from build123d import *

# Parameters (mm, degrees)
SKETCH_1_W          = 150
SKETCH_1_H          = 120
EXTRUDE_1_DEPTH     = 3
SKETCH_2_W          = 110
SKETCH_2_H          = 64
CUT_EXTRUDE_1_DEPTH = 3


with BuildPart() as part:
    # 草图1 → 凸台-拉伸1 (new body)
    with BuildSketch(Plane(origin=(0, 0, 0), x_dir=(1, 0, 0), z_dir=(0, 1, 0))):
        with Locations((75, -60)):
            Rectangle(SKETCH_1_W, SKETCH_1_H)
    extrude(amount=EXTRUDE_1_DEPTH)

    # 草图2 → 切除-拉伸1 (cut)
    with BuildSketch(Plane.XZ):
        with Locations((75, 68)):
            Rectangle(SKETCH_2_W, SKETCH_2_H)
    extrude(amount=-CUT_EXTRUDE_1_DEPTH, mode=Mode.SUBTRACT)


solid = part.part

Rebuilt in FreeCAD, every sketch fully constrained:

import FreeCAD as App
import Part
import Sketcher

V = App.Vector
Q = App.Units.Quantity


def add_polygon(sketch, points):
    """Adds a closed chain of lines whose ends are joined by coincident constraints."""
    first, n = sketch.GeometryCount, len(points)
    for a, b in zip(points, points[1:] + points[:1]):
        sketch.addGeometry(Part.LineSegment(App.Vector(*a, 0), App.Vector(*b, 0)), False)
    for i in range(n):
        sketch.addConstraint(Sketcher.Constraint("Coincident", first + i, 2, first + (i + 1) % n, 1))

doc = App.newDocument("Part")
params = doc.addObject("Spreadsheet::Sheet", "Params")
for row, (alias, value) in enumerate([
    ("sketch1_width", "150 mm"),
    ("sketch1_height", "120 mm"),
    ("pad1_length", "3 mm"),
    ("sketch2_width", "110 mm"),
    ("sketch2_height", "64 mm"),
    ("pocket1_length", "3 mm"),
], start=1):
    params.set(f"A{row}", alias)
    params.set(f"B{row}", "=" + value)
    params.setAlias(f"B{row}", alias)

body = doc.addObject("PartDesign::Body", "Body")

sketch1 = doc.addObject("Sketcher::SketchObject", "Sketch")
body.addObject(sketch1)
sketch1.AttachmentSupport = (doc.XZ_Plane, [""])
sketch1.MapMode = "FlatFace"
add_polygon(sketch1, [(0, 0), (0, 120), (150, 120), (150, 0)])
sketch1.addConstraint([
    Sketcher.Constraint("Vertical", 0),
    Sketcher.Constraint("Horizontal", 1),
    Sketcher.Constraint("Vertical", 2),
    Sketcher.Constraint("Horizontal", 3),
    Sketcher.Constraint("Coincident", 3, 2, -1, 1),
    Sketcher.Constraint("DistanceX", 1, 1, 1, 2, Q("150 mm")),
    Sketcher.Constraint("DistanceY", 0, 1, 0, 2, Q("120 mm")),
])
sketch1.setExpression("Constraints[9]", "Params.sketch1_width")
sketch1.setExpression("Constraints[10]", "Params.sketch1_height")
pad1 = doc.addObject("PartDesign::Pad", "Pad")
body.addObject(pad1)
pad1.Profile = sketch1
pad1.setExpression("Length", "Params.pad1_length")
pad1.Reversed = True

sketch2 = doc.addObject("Sketcher::SketchObject", "Sketch001")
body.addObject(sketch2)
sketch2.AttachmentSupport = (doc.XZ_Plane, [""])
sketch2.MapMode = "FlatFace"
add_polygon(sketch2, [(20, 100), (20, 36), (130, 36), (130, 100)])
sketch2.addConstraint([
    Sketcher.Constraint("Vertical", 0),
    Sketcher.Constraint("Horizontal", 1),
    Sketcher.Constraint("Vertical", 2),
    Sketcher.Constraint("Horizontal", 3),
    Sketcher.Constraint("DistanceX", 1, 1, 1, 2, Q("110 mm")),
    Sketcher.Constraint("DistanceY", 0, 2, 0, 1, Q("64 mm")),
    Sketcher.Constraint("DistanceX", -1, 1, 0, 2, Q("20 mm")),
    Sketcher.Constraint("DistanceY", -1, 1, 0, 2, Q("36 mm")),
])
sketch2.setExpression("Constraints[8]", "Params.sketch2_width")
sketch2.setExpression("Constraints[9]", "Params.sketch2_height")
pocket1 = doc.addObject("PartDesign::Pocket", "Pocket")
body.addObject(pocket1)
pocket1.Profile = sketch2
pocket1.setExpression("Length", "Params.pocket1_length")

doc.recompute()
